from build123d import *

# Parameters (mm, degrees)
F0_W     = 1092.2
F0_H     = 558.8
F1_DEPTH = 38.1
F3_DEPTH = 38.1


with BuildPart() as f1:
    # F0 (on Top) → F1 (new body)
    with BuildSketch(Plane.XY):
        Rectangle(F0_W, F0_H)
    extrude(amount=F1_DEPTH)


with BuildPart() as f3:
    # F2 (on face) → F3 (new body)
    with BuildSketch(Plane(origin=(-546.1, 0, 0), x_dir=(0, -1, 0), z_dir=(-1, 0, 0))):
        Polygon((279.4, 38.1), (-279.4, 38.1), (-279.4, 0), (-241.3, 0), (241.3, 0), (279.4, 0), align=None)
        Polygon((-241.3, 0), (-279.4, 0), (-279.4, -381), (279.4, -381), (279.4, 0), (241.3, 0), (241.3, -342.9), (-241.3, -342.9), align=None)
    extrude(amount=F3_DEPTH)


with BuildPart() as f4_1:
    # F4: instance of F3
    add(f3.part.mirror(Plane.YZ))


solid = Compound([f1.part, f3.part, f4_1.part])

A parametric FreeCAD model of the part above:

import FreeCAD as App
import Part
import Sketcher
from FreeCAD import Vector
Q = App.Units.Quantity

doc = App.newDocument("Part")
body = doc.addObject("PartDesign::Body", "Body")

# Sketch on XY plane
sketch1 = body.newObject("Sketcher::SketchObject", "Sketch")
sketch1.AttachmentSupport = (doc.getObject("XY_Plane"), [""])
sketch1.MapMode = "FlatFace"
sketch1.addGeometry([
    Part.LineSegment(Vector(-546, 279, 0), Vector(-546, -279, 0)),
    Part.LineSegment(Vector(-546, -279, 0), Vector(546, -279, 0)),
    Part.LineSegment(Vector(546, -279, 0), Vector(546, 279, 0)),
    Part.LineSegment(Vector(546, 279, 0), Vector(-546, 279, 0)),
], False)
sketch1.addConstraint([
    Sketcher.Constraint("Coincident", 0, 2, 1, 1),
    Sketcher.Constraint("Coincident", 1, 2, 2, 1),
    Sketcher.Constraint("Coincident", 2, 2, 3, 1),
    Sketcher.Constraint("Coincident", 3, 2, 0, 1),
    Sketcher.Constraint("Vertical", 0),
    Sketcher.Constraint("Horizontal", 1),
    Sketcher.Constraint("Vertical", 2),
    Sketcher.Constraint("Horizontal", 3),
    Sketcher.Constraint("Symmetric", 0, 2, 2, 2, -1, 1),
    Sketcher.Constraint("DistanceX", 1, 1, 1, 2, Q("43 in")),
    Sketcher.Constraint("DistanceY", 0, 2, 0, 1, Q("22 in")),
])
pad1 = body.newObject("PartDesign::Pad", "Pad")
pad1.Profile = sketch1
pad1.Length = Q("1.5 in")
body2 = doc.addObject("PartDesign::Body", "Body001")

# Sketch on YZ plane
sketch2 = body2.newObject("Sketcher::SketchObject", "Sketch001")
sketch2.AttachmentSupport = (doc.getObject("YZ_Plane001"), [""])
sketch2.MapMode = "FlatFace"
sketch2.AttachmentOffset = App.Placement(Vector(0, 0, -21.5 * 25.4), App.Rotation())
sketch2.addGeometry([
    Part.LineSegment(Vector(-279, 38, 0), Vector(279, 38, 0)),  # 0
    Part.LineSegment(Vector(279, 38, 0), Vector(279, -381, 0)),  # 1
    Part.LineSegment(Vector(279, -381, 0), Vector(-279, -381, 0)),  # 2
    Part.LineSegment(Vector(-279, -381, 0), Vector(-279, 38, 0)),  # 3
    Part.LineSegment(Vector(241, 0, 0), Vector(-241, 0, 0)),  # 4
    Part.LineSegment(Vector(-241, 0, 0), Vector(-241, -343, 0)),  # 5
    Part.LineSegment(Vector(-241, -343, 0), Vector(241, -343, 0)),  # 6
    Part.LineSegment(Vector(241, -343, 0), Vector(241, 0, 0)),  # 7
], False)
sketch2.addConstraint([
    Sketcher.Constraint("Coincident", 0, 2, 1, 1),
    Sketcher.Constraint("Coincident", 1, 2, 2, 1),
    Sketcher.Constraint("Coincident", 2, 2, 3, 1),
    Sketcher.Constraint("Coincident", 3, 2, 0, 1),
    Sketcher.Constraint("Coincident", 4, 2, 5, 1),
    Sketcher.Constraint("Coincident", 5, 2, 6, 1),
    Sketcher.Constraint("Coincident", 6, 2, 7, 1),
    Sketcher.Constraint("Coincident", 7, 2, 4, 1),
    Sketcher.Constraint("Horizontal", 0),
    Sketcher.Constraint("Vertical", 1),
    Sketcher.Constraint("Horizontal", 2),
    Sketcher.Constraint("Vertical", 3),
    Sketcher.Constraint("Horizontal", 4),
    Sketcher.Constraint("Vertical", 5),
    Sketcher.Constraint("Horizontal", 6),
    Sketcher.Constraint("Vertical", 7),
    Sketcher.Constraint("Symmetric", 4, 2, 7, 2, -1, 1),
    Sketcher.Constraint("DistanceX", 0, 1, 0, 2, Q("22 in")),
    Sketcher.Constraint("DistanceX", 4, 2, 4, 1, Q("19 in")),
    Sketcher.Constraint("DistanceY", 1, 2, 1, 1, Q("16.5 in")),
    Sketcher.Constraint("DistanceY", 5, 2, 5, 1, Q("13.5 in")),
    Sketcher.Constraint("DistanceX", -1, 1, 0, 2, Q("11 in")),
    Sketcher.Constraint("DistanceY", 1, 2, -1, 1, Q("15 in")),
])
pad2 = body2.newObject("PartDesign::Pad", "Pad001")
pad2.Profile = sketch2
pad2.Length = Q("1.5 in")
pad2.Reversed = True
body3 = doc.addObject("PartDesign::Body", "Body002")
doc.recompute()

mirroring = doc.addObject("Part::Mirroring", "Mirroring")
mirroring.Source = body2
mirroring.Base = Vector(0, 0, 0)
mirroring.Normal = Vector(1, 0, 0)
body3.BaseFeature = mirroring
doc.recompute()
mirroring.Visibility = False

doc.recompute()
